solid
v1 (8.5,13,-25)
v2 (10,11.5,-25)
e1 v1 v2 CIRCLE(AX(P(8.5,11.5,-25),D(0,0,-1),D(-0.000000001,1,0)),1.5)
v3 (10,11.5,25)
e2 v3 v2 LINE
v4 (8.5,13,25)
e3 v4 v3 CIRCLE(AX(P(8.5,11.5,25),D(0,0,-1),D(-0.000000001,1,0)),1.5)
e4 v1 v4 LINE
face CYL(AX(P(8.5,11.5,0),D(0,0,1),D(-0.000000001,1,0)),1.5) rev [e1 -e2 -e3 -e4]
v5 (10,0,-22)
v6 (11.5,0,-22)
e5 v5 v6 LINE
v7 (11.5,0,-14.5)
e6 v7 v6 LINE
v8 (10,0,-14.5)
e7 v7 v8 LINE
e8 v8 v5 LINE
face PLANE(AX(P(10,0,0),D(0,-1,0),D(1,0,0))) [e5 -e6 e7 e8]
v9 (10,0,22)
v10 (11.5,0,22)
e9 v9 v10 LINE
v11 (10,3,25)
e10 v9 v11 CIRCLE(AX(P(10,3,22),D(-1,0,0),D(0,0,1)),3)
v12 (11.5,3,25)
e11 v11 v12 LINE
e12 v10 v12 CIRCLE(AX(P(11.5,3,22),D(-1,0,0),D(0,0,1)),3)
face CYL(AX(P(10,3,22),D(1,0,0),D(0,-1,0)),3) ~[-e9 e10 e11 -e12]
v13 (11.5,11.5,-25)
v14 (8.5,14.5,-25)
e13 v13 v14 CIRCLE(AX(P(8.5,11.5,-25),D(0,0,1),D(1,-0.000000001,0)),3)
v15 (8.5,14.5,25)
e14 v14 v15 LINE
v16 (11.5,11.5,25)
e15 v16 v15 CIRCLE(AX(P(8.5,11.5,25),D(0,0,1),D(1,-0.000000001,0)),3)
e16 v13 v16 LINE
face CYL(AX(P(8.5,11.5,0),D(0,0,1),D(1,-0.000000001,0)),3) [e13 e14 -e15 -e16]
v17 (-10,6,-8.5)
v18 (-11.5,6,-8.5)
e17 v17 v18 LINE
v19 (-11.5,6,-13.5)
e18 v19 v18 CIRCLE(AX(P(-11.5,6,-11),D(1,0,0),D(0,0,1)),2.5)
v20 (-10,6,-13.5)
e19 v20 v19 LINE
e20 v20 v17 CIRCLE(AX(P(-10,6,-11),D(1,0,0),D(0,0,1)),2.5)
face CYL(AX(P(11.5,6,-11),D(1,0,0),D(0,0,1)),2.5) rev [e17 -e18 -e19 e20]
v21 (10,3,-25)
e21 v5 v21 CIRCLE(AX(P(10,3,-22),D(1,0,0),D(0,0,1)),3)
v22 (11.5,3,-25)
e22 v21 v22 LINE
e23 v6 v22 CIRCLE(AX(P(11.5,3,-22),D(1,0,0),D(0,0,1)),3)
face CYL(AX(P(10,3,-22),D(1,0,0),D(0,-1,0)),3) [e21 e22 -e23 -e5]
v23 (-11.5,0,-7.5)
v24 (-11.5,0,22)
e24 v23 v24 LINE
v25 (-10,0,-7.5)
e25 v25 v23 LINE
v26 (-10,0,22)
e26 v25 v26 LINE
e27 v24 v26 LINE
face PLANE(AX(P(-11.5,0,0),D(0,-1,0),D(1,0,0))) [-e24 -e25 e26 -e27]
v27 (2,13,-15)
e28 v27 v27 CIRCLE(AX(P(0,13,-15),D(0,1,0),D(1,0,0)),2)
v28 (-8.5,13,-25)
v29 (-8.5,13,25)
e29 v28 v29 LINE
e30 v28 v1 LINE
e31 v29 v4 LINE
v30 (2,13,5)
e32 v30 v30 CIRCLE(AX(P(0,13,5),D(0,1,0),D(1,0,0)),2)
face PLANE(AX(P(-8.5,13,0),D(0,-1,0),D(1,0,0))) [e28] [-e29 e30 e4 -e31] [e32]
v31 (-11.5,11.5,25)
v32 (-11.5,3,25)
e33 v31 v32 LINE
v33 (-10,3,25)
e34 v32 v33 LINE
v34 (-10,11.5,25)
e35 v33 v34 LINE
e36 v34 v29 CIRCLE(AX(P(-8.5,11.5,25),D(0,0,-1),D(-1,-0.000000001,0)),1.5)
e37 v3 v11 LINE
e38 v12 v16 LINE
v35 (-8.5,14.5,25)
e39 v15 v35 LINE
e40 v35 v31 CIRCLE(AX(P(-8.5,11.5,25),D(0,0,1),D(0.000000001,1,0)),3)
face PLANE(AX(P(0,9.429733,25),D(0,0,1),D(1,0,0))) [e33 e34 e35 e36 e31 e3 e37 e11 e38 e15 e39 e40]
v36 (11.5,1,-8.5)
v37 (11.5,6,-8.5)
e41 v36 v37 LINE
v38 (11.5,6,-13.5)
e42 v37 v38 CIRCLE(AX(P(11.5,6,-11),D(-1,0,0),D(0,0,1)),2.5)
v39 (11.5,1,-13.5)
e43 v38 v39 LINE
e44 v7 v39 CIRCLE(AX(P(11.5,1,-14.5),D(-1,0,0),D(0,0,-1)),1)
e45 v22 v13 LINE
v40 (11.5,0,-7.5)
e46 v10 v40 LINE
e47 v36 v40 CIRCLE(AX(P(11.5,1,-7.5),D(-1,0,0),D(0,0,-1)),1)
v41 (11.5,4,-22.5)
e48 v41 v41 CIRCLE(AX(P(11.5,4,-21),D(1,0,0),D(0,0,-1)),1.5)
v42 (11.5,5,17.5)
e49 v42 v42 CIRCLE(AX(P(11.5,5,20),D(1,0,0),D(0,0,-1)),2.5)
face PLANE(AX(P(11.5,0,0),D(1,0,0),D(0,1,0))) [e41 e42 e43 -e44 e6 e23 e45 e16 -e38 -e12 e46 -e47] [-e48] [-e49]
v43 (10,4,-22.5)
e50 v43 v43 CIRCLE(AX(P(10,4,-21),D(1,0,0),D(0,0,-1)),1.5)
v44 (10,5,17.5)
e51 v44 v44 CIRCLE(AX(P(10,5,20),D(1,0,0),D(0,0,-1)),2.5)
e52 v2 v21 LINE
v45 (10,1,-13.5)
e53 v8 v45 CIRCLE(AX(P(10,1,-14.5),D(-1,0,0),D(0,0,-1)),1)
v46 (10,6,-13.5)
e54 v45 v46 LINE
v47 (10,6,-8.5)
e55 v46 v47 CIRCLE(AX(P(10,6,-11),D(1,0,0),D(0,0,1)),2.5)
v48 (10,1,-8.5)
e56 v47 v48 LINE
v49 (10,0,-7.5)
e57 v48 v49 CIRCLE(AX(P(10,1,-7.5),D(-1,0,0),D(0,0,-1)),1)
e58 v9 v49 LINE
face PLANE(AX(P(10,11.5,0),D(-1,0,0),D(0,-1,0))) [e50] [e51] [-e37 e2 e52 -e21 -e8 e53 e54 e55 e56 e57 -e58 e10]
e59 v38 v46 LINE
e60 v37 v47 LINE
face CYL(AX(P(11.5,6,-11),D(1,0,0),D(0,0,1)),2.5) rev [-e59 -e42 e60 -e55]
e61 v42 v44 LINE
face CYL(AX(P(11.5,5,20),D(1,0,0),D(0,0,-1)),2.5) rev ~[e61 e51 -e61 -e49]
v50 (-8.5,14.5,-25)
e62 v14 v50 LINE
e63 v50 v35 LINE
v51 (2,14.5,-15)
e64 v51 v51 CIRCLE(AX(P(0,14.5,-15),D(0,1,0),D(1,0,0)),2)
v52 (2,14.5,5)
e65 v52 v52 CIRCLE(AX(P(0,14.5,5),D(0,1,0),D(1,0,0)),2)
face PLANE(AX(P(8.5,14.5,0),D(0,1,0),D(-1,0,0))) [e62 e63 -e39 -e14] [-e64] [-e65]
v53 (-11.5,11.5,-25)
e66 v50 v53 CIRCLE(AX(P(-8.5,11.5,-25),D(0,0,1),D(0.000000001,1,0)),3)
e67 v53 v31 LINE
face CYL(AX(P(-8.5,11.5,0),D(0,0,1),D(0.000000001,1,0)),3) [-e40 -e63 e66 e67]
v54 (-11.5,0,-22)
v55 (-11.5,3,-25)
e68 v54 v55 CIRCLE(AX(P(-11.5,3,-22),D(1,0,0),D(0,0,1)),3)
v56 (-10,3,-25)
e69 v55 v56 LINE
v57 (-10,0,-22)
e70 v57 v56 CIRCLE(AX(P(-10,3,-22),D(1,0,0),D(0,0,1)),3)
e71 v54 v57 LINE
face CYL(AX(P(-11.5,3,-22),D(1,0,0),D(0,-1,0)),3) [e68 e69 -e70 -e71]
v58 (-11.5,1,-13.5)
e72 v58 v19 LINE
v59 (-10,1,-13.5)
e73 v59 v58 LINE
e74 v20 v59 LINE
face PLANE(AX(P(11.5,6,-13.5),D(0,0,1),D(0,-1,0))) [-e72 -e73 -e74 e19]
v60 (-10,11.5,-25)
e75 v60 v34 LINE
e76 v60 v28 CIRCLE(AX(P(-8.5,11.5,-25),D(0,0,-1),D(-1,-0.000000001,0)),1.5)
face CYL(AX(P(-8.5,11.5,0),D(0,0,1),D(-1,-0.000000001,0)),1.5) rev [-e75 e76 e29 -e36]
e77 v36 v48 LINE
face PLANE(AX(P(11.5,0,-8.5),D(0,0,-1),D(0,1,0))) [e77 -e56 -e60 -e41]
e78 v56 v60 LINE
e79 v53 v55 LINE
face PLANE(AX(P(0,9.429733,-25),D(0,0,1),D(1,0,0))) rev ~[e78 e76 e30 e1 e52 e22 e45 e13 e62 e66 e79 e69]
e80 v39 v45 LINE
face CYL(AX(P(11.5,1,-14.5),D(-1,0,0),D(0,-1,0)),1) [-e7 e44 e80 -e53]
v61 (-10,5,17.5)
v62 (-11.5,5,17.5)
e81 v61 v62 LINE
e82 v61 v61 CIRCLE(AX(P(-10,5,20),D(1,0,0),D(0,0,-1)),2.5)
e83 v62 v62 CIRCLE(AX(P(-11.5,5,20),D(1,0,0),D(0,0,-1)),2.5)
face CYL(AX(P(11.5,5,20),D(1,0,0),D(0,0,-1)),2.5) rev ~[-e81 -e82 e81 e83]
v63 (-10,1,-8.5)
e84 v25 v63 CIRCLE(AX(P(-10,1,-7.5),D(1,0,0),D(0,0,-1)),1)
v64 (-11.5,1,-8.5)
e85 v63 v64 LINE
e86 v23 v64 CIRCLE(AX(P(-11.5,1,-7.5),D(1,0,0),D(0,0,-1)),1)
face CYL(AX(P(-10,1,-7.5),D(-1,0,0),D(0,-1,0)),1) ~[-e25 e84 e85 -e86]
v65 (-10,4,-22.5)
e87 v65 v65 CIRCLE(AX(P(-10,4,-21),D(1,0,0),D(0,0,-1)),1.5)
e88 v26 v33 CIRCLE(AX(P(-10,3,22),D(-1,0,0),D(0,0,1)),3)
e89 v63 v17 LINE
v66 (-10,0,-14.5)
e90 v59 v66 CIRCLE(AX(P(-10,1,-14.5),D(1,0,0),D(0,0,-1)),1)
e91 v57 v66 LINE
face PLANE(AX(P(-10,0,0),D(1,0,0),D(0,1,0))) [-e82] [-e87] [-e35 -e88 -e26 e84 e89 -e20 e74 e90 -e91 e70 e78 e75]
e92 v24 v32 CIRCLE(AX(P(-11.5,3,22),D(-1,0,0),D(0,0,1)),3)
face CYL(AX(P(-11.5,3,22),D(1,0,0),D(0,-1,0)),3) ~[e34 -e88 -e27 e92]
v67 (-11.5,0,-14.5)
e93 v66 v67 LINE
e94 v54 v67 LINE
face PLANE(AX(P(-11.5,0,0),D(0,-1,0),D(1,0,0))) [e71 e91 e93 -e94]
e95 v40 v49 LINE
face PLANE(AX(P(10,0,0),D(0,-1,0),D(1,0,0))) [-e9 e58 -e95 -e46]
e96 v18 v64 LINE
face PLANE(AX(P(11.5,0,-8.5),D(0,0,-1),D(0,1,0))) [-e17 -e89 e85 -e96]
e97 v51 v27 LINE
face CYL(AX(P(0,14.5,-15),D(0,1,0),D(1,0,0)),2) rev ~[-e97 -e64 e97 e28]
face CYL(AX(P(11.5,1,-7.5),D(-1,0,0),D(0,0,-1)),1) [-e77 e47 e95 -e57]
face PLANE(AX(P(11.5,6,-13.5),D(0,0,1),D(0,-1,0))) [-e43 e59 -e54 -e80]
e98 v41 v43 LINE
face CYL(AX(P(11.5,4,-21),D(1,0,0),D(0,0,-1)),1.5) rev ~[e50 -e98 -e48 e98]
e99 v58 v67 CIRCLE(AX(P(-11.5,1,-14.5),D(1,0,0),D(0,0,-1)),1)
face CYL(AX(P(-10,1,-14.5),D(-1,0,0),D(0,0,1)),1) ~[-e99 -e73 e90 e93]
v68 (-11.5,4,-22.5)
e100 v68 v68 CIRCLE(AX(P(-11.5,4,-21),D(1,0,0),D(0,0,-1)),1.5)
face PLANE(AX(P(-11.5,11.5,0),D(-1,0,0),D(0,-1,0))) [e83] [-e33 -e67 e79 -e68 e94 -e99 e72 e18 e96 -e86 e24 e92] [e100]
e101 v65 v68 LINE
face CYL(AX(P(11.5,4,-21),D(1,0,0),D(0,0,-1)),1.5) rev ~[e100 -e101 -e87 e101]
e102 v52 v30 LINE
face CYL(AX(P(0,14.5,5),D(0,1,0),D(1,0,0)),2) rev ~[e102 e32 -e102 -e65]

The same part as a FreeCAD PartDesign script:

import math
import FreeCAD as App
import Part
import Sketcher


def edges_at(feature, points):
    """Names of the edges that pass closest to the given points."""
    edges = feature.Shape.Edges
    near = lambda p: min(range(len(edges)), key=lambda i: edges[i].distToShape(Part.Vertex(*p))[0])
    return sorted({f"Edge{near(p) + 1}" for p in points})

doc = App.newDocument("Part")
body = doc.addObject("PartDesign::Body", "Body")

# Sketch on XY plane
sketch1 = body.newObject("Sketcher::SketchObject", "Sketch")
sketch1.AttachmentSupport = (doc.getObject("XY_Plane"), [""])
sketch1.MapMode = "FlatFace"
sketch1.addGeometry(Part.LineSegment(App.Vector(11.5, 0, 0), App.Vector(11.5, 11.5, 0)), False)
sketch1.addGeometry(Part.ArcOfCircle(Part.Circle(App.Vector(8.5, 11.5, 0), App.Vector(0, 0, 1), 3), math.radians(0), math.radians(90)), False)
sketch1.addGeometry(Part.LineSegment(App.Vector(8.5, 14.5, 0), App.Vector(-8.5, 14.5, 0)), False)
sketch1.addGeometry(Part.ArcOfCircle(Part.Circle(App.Vector(-8.5, 11.5, 0), App.Vector(0, 0, 1), 3), math.radians(90), math.radians(180)), False)
sketch1.addGeometry(Part.LineSegment(App.Vector(-11.5, 11.5, 0), App.Vector(-11.5, 0, 0)), False)
sketch1.addGeometry(Part.LineSegment(App.Vector(-11.5, 0, 0), App.Vector(-10, 0, 0)), False)
sketch1.addGeometry(Part.LineSegment(App.Vector(-10, 0, 0), App.Vector(-10, 11.5, 0)), False)
sketch1.addGeometry(Part.ArcOfCircle(Part.Circle(App.Vector(-8.5, 11.5, 0), App.Vector(0, 0, 1), 1.5), math.radians(90), math.radians(180)), False)
sketch1.addGeometry(Part.LineSegment(App.Vector(-8.5, 13, 0), App.Vector(8.5, 13, 0)), False)
sketch1.addGeometry(Part.ArcOfCircle(Part.Circle(App.Vector(8.5, 11.5, 0), App.Vector(0, 0, 1), 1.5), math.radians(0), math.radians(90)), False)
sketch1.addGeometry(Part.LineSegment(App.Vector(10, 11.5, 0), App.Vector(10, 0, 0)), False)
sketch1.addGeometry(Part.LineSegment(App.Vector(10, 0, 0), App.Vector(11.5, 0, 0)), False)
sketch1.addConstraint(Sketcher.Constraint("Tangent", 0, 2, 1, 1))
sketch1.addConstraint(Sketcher.Constraint("Tangent", 1, 2, 2, 1))
sketch1.addConstraint(Sketcher.Constraint("Tangent", 2, 2, 3, 1))
sketch1.addConstraint(Sketcher.Constraint("Tangent", 3, 2, 4, 1))
sketch1.addConstraint(Sketcher.Constraint("Coincident", 4, 2, 5, 1))
sketch1.addConstraint(Sketcher.Constraint("Coincident", 5, 2, 6, 1))
sketch1.addConstraint(Sketcher.Constraint("Tangent", 6, 2, 7, 2))
sketch1.addConstraint(Sketcher.Constraint("Tangent", 7, 1, 8, 1))
sketch1.addConstraint(Sketcher.Constraint("Tangent", 8, 2, 9, 2))
sketch1.addConstraint(Sketcher.Constraint("Tangent", 9, 1, 10, 1))
sketch1.addConstraint(Sketcher.Constraint("Coincident", 10, 2, 11, 1))
sketch1.addConstraint(Sketcher.Constraint("Coincident", 11, 2, 0, 1))
sketch1.addConstraint(Sketcher.Constraint("Vertical", 0))
sketch1.addConstraint(Sketcher.Constraint("Horizontal", 2))
sketch1.addConstraint(Sketcher.Constraint("Vertical", 4))
sketch1.addConstraint(Sketcher.Constraint("Horizontal", 5))
sketch1.addConstraint(Sketcher.Constraint("Vertical", 6))
sketch1.addConstraint(Sketcher.Constraint("Horizontal", 8))
sketch1.addConstraint(Sketcher.Constraint("Vertical", 10))
sketch1.addConstraint(Sketcher.Constraint("Horizontal", 11))
sketch1.addConstraint(Sketcher.Constraint("Coincident", 7, 3, 3, 3))
sketch1.addConstraint(Sketcher.Constraint("Coincident", 9, 3, 1, 3))
sketch1.addConstraint(Sketcher.Constraint("Equal", 1, 3))
sketch1.addConstraint(Sketcher.Constraint("Symmetric", 5, 2, 10, 2, -1, 1))
sketch1.addConstraint(Sketcher.Constraint("PointOnObject", 4, 2, -1))
sketch1.addConstraint(Sketcher.Constraint("Radius", 1, 3.0))
sketch1.addConstraint(Sketcher.Constraint("Radius", 7, 1.5))
sketch1.addConstraint(Sketcher.Constraint("DistanceX", 2, 2, 2, 1, 17.0))
sketch1.addConstraint(Sketcher.Constraint("DistanceY", 0, 1, 0, 2, 11.5))
pad1 = body.newObject("PartDesign::Pad", "Pad")
pad1.Profile = sketch1
pad1.Length = 50
pad1.Midplane = True
doc.recompute()

fillet = body.newObject("PartDesign::Fillet", "Fillet")
fillet.Base = (pad1, edges_at(pad1, [
    (-10.75, 0, -25),
    (10.75, 0, -25),
    (-10.75, 0, 25),
    (10.75, 0, 25),
]))
fillet.Radius = 3

# Sketch on YZ plane
sketch2 = body.newObject("Sketcher::SketchObject", "Sketch001")
sketch2.AttachmentSupport = (doc.getObject("YZ_Plane"), [""])
sketch2.MapMode = "FlatFace"
sketch2.AttachmentOffset = App.Placement(App.Vector(0, 0, 11.5), App.Rotation())
sketch2.addGeometry(Part.LineSegment(App.Vector(6, -8.5, 0), App.Vector(0, -8.5, 0)), False)
sketch2.addGeometry(Part.LineSegment(App.Vector(0, -8.5, 0), App.Vector(0, -13.5, 0)), False)
sketch2.addGeometry(Part.LineSegment(App.Vector(0, -13.5, 0), App.Vector(6, -13.5, 0)), False)
sketch2.addGeometry(Part.ArcOfCircle(Part.Circle(App.Vector(6, -11, 0), App.Vector(0, 0, 1), 2.5), math.radians(-90), math.radians(90)), False)
sketch2.addConstraint(Sketcher.Constraint("Coincident", 0, 2, 1, 1))
sketch2.addConstraint(Sketcher.Constraint("Coincident", 1, 2, 2, 1))
sketch2.addConstraint(Sketcher.Constraint("Tangent", 2, 2, 3, 1))
sketch2.addConstraint(Sketcher.Constraint("Tangent", 3, 2, 0, 1))
sketch2.addConstraint(Sketcher.Constraint("Horizontal", 0))
sketch2.addConstraint(Sketcher.Constraint("Vertical", 1))
sketch2.addConstraint(Sketcher.Constraint("Horizontal", 2))
sketch2.addConstraint(Sketcher.Constraint("PointOnObject", 0, 2, -2))
sketch2.addConstraint(Sketcher.Constraint("Radius", 3, 2.5))
sketch2.addConstraint(Sketcher.Constraint("DistanceX", 0, 2, 0, 1, 6.0))
sketch2.addConstraint(Sketcher.Constraint("DistanceY", 3, 3, -1, 1, 11.0))
pocket1 = body.newObject("PartDesign::Pocket", "Pocket")
pocket1.Profile = sketch2
pocket1.Type = "ThroughAll"
doc.recompute()

fillet2 = body.newObject("PartDesign::Fillet", "Fillet001")
fillet2.Base = (pocket1, edges_at(pocket1, [
    (-10.75, 0, -13.5),
    (10.75, 0, -13.5),
    (-10.75, 0, -8.5),
    (10.75, 0, -8.5),
]))
fillet2.Radius = 1

# Sketch on YZ plane
sketch3 = body.newObject("Sketcher::SketchObject", "Sketch002")
sketch3.AttachmentSupport = (doc.getObject("YZ_Plane"), [""])
sketch3.MapMode = "FlatFace"
sketch3.AttachmentOffset = App.Placement(App.Vector(0, 0, 11.5), App.Rotation())
sketch3.addGeometry(Part.Circle(App.Vector(5, 20, 0), App.Vector(0, 0, 1), 2.5), False)
sketch3.addConstraint(Sketcher.Constraint("Diameter", 0, 5.0))
sketch3.addConstraint(Sketcher.Constraint("DistanceX", -1, 1, 0, 3, 5.0))
sketch3.addConstraint(Sketcher.Constraint("DistanceY", -1, 1, 0, 3, 20.0))
pocket2 = body.newObject("PartDesign::Pocket", "Pocket001")
pocket2.Profile = sketch3
pocket2.Type = "ThroughAll"

# Sketch on YZ plane
sketch4 = body.newObject("Sketcher::SketchObject", "Sketch003")
sketch4.AttachmentSupport = (doc.getObject("YZ_Plane"), [""])
sketch4.MapMode = "FlatFace"
sketch4.AttachmentOffset = App.Placement(App.Vector(0, 0, 11.5), App.Rotation())
sketch4.addGeometry(Part.Circle(App.Vector(4, -21, 0), App.Vector(0, 0, 1), 1.5), False)
sketch4.addConstraint(Sketcher.Constraint("Diameter", 0, 3.0))
sketch4.addConstraint(Sketcher.Constraint("DistanceX", -1, 1, 0, 3, 4.0))
sketch4.addConstraint(Sketcher.Constraint("DistanceY", 0, 3, -1, 1, 21.0))
pocket3 = body.newObject("PartDesign::Pocket", "Pocket002")
pocket3.Profile = sketch4
pocket3.Type = "ThroughAll"

# Sketch on XZ plane
sketch5 = body.newObject("Sketcher::SketchObject", "Sketch004")
sketch5.AttachmentSupport = (doc.getObject("XZ_Plane"), [""])
sketch5.MapMode = "FlatFace"
sketch5.AttachmentOffset = App.Placement(App.Vector(0, 0, -14.5), App.Rotation())
sketch5.addGeometry(Part.Circle(App.Vector(0, -15, 0), App.Vector(0, 0, 1), 2), False)
sketch5.addGeometry(Part.Circle(App.Vector(0, 5, 0), App.Vector(0, 0, 1), 2), False)
sketch5.addConstraint(Sketcher.Constraint("Equal", 0, 1))
sketch5.addConstraint(Sketcher.Constraint("PointOnObject", 0, 3, -2))
sketch5.addConstraint(Sketcher.Constraint("PointOnObject", 1, 3, -2))
sketch5.addConstraint(Sketcher.Constraint("Diameter", 0, 4.0))
sketch5.addConstraint(Sketcher.Constraint("DistanceY", 0, 3, -1, 1, 15.0))
sketch5.addConstraint(Sketcher.Constraint("DistanceY", -1, 1, 1, 3, 5.0))
pocket4 = body.newObject("PartDesign::Pocket", "Pocket003")
pocket4.Profile = sketch5
pocket4.Length = 50
pocket4.Reversed = True

doc.recompute()
